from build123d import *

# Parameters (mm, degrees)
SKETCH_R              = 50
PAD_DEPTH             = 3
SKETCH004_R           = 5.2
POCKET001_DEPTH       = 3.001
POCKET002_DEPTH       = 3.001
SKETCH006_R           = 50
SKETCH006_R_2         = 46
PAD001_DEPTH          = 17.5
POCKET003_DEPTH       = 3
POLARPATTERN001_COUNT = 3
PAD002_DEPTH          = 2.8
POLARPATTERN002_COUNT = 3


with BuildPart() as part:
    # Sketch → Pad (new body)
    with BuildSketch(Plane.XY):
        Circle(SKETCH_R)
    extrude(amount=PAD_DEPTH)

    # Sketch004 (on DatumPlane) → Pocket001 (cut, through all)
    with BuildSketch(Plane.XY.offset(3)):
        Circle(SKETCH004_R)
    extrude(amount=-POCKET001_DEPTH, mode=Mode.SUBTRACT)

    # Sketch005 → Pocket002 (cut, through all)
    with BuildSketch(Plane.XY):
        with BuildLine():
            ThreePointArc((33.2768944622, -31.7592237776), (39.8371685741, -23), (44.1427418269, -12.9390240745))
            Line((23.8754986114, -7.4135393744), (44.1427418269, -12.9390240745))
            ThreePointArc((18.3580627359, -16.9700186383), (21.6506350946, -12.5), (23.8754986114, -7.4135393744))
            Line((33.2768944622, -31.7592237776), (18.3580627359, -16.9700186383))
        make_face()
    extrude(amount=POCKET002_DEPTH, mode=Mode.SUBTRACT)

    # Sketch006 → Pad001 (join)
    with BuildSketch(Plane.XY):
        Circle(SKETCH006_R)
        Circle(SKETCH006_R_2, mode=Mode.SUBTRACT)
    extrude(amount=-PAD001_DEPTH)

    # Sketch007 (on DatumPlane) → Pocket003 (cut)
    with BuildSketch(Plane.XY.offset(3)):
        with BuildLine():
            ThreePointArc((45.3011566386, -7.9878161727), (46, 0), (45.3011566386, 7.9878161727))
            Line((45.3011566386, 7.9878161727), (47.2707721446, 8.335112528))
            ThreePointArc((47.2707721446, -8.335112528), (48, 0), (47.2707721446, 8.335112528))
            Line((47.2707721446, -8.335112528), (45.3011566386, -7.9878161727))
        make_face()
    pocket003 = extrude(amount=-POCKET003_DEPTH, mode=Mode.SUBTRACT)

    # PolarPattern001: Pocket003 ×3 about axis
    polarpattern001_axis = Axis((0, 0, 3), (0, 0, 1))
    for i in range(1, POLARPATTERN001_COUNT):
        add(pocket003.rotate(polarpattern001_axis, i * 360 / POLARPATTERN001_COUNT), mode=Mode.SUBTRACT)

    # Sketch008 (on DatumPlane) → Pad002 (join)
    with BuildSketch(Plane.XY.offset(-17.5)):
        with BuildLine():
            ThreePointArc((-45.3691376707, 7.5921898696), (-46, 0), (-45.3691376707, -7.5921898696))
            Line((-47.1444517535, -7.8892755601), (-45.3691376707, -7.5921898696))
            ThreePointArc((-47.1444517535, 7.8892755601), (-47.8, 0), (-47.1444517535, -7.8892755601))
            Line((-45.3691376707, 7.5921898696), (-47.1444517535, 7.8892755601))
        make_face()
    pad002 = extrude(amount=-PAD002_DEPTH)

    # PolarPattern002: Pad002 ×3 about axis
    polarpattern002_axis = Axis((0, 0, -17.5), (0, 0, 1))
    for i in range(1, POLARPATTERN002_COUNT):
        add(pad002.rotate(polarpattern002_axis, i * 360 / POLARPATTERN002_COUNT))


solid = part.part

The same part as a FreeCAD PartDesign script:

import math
import FreeCAD as App
import Part
import Sketcher
from FreeCAD import Vector
Q = App.Units.Quantity

doc = App.newDocument("Part")
params = doc.addObject("Spreadsheet::Sheet", "Params")
for row, (alias, value) in enumerate([
    ("sketch1_diameter", "100 mm"),
    ("pad1_length", "3 mm"),
    ("sketch2_diameter", "10.4 mm"),
    ("sketch3_radius", "46 mm"),
    ("sketch3_radius2", "25 mm"),
    ("sketch4_diameter", "100 mm"),
    ("sketch4_diameter2", "92 mm"),
    ("pad2_length", "17.5 mm"),
    ("sketch5_radius", "46 mm"),
    ("sketch5_radius2", "48 mm"),
    ("pocket3_length", "3 mm"),
    ("sketch6_radius", "46 mm"),
    ("sketch6_radius2", "47.8 mm"),
    ("pad3_length", "2.8 mm"),
], start=1):
    params.set(f"A{row}", alias)
    params.set(f"B{row}", "=" + value)
    params.setAlias(f"B{row}", alias)

body = doc.addObject("PartDesign::Body", "Body")

sketch1 = body.newObject("Sketcher::SketchObject", "Sketch")
sketch1.AttachmentSupport = (doc.getObject("XY_Plane"), [""])
sketch1.MapMode = "FlatFace"
sketch1.addGeometry(Part.Circle(Vector(0, 0, 0), Vector(0, 0, 1), 50), False)
sketch1.addConstraint(Sketcher.Constraint("Coincident", 0, 3, -1, 1))
sketch1.addConstraint(Sketcher.Constraint("Diameter", 0, 100.0))
sketch1.setExpression("Constraints[1]", "Params.sketch1_diameter")
pad1 = body.newObject("PartDesign::Pad", "Pad")
pad1.Profile = sketch1
pad1.setExpression("Length", "Params.pad1_length")

sketch2 = body.newObject("Sketcher::SketchObject", "Sketch001")
sketch2.AttachmentSupport = (doc.getObject("XY_Plane"), [""])
sketch2.MapMode = "FlatFace"
sketch2.AttachmentOffset = App.Placement(Vector(0, 0, 3), App.Rotation())
sketch2.addGeometry(Part.Circle(Vector(0, 0, 0), Vector(0, 0, 1), 5.2), False)
sketch2.addConstraint(Sketcher.Constraint("Coincident", 0, 3, -1, 1))
sketch2.addConstraint(Sketcher.Constraint("Diameter", 0, 10.4))
sketch2.setExpression("Constraints[1]", "Params.sketch2_diameter")
pocket1 = body.newObject("PartDesign::Pocket", "Pocket")
pocket1.Profile = sketch2
pocket1.Type = "ThroughAll"

sketch3 = body.newObject("Sketcher::SketchObject", "Sketch002")
sketch3.AttachmentSupport = (doc.getObject("XY_Plane"), [""])
sketch3.MapMode = "FlatFace"
sketch3.addGeometry(Part.ArcOfCircle(Part.Circle(Vector(0, 0, 0), Vector(0, 0, 1), 46), math.radians(-43.663199), math.radians(-16.336801)), False)
sketch3.addGeometry(Part.LineSegment(Vector(44.142742, -12.939024, 0), Vector(23.875499, -7.413539, 0)), False)
sketch3.addGeometry(Part.ArcOfCircle(Part.Circle(Vector(0, 0, 0), Vector(0, 0, 1), 25), math.radians(-42.75), math.radians(-17.25)), False)
sketch3.addGeometry(Part.LineSegment(Vector(18.358063, -16.970019, 0), Vector(33.276894, -31.759224, 0)), False)
sketch3.addConstraint(Sketcher.Constraint("Coincident", 0, 2, 1, 1))
sketch3.addConstraint(Sketcher.Constraint("Coincident", 1, 2, 2, 2))
sketch3.addConstraint(Sketcher.Constraint("Coincident", 2, 1, 3, 1))
sketch3.addConstraint(Sketcher.Constraint("Coincident", 3, 2, 0, 1))
sketch3.addConstraint(Sketcher.Constraint("Coincident", 0, 3, -1, 1))
sketch3.addConstraint(Sketcher.Constraint("Coincident", 2, 3, -1, 1))
sketch3.addConstraint(Sketcher.Constraint("Equal", 1, 3))
sketch3.addConstraint(Sketcher.Constraint("Radius", 0, 46.0))
sketch3.addConstraint(Sketcher.Constraint("Radius", 2, 25.0))
sketch3.addConstraint(Sketcher.Constraint("Angle", 1, Q("164.75 deg")))
sketch3.addConstraint(Sketcher.Constraint("Angle", 3, Q("-44.75 deg")))
sketch3.addConstraint(Sketcher.Constraint("DistanceX", -1, 1, 1, 2, 23.875499))
sketch3.setExpression("Constraints[7]", "Params.sketch3_radius")
sketch3.setExpression("Constraints[8]", "Params.sketch3_radius2")
pocket2 = body.newObject("PartDesign::Pocket", "Pocket001")
pocket2.Profile = sketch3
pocket2.Type = "ThroughAll"
pocket2.Reversed = True

sketch4 = body.newObject("Sketcher::SketchObject", "Sketch003")
sketch4.AttachmentSupport = (doc.getObject("XY_Plane"), [""])
sketch4.MapMode = "FlatFace"
sketch4.addGeometry(Part.Circle(Vector(0, 0, 0), Vector(0, 0, 1), 50), False)
sketch4.addGeometry(Part.Circle(Vector(0, 0, 0), Vector(0, 0, 1), 46), False)
sketch4.addConstraint(Sketcher.Constraint("Coincident", 0, 3, -1, 1))
sketch4.addConstraint(Sketcher.Constraint("Coincident", 1, 3, -1, 1))
sketch4.addConstraint(Sketcher.Constraint("Diameter", 0, 100.0))
sketch4.addConstraint(Sketcher.Constraint("Diameter", 1, 92.0))
sketch4.setExpression("Constraints[2]", "Params.sketch4_diameter")
sketch4.setExpression("Constraints[3]", "Params.sketch4_diameter2")
pad2 = body.newObject("PartDesign::Pad", "Pad001")
pad2.Profile = sketch4
pad2.setExpression("Length", "Params.pad2_length")
pad2.Reversed = True

sketch5 = body.newObject("Sketcher::SketchObject", "Sketch004")
sketch5.AttachmentSupport = (doc.getObject("XY_Plane"), [""])
sketch5.MapMode = "FlatFace"
sketch5.AttachmentOffset = App.Placement(Vector(0, 0, 3), App.Rotation())
sketch5.addGeometry(Part.ArcOfCircle(Part.Circle(Vector(0, 0, 0), Vector(0, 0, 1), 46), math.radians(-10), math.radians(10)), False)
sketch5.addGeometry(Part.LineSegment(Vector(45.301157, -7.987816, 0), Vector(47.270772, -8.335113, 0)), False)
sketch5.addGeometry(Part.ArcOfCircle(Part.Circle(Vector(0, 0, 0), Vector(0, 0, 1), 48), math.radians(-10), math.radians(10)), False)
sketch5.addGeometry(Part.LineSegment(Vector(47.270772, 8.335113, 0), Vector(45.301157, 7.987816, 0)), False)
sketch5.addConstraint(Sketcher.Constraint("Coincident", 0, 1, 1, 1))
sketch5.addConstraint(Sketcher.Constraint("Coincident", 1, 2, 2, 1))
sketch5.addConstraint(Sketcher.Constraint("Coincident", 2, 2, 3, 1))
sketch5.addConstraint(Sketcher.Constraint("Coincident", 3, 2, 0, 2))
sketch5.addConstraint(Sketcher.Constraint("Coincident", 0, 3, -1, 1))
sketch5.addConstraint(Sketcher.Constraint("Coincident", 2, 3, -1, 1))
sketch5.addConstraint(Sketcher.Constraint("Vertical", 1, 2, 2, 2))
sketch5.addConstraint(Sketcher.Constraint("Vertical", 0, 1, 3, 2))
sketch5.addConstraint(Sketcher.Constraint("Radius", 0, 46.0))
sketch5.addConstraint(Sketcher.Constraint("Radius", 2, 48.0))
sketch5.addConstraint(Sketcher.Constraint("Angle", 1, Q("-10 deg")))
sketch5.addConstraint(Sketcher.Constraint("DistanceY", 0, 1, 2, 2, 16.322929))
sketch5.setExpression("Constraints[8]", "Params.sketch5_radius")
sketch5.setExpression("Constraints[9]", "Params.sketch5_radius2")
pocket3 = body.newObject("PartDesign::Pocket", "Pocket002")
pocket3.Profile = sketch5
pocket3.setExpression("Length", "Params.pocket3_length")
doc.recompute()

polarpattern = body.newObject("PartDesign::PolarPattern", "PolarPattern")
polarpattern.Originals = [pocket3]
polarpattern.Axis = (doc.getObject("Z_Axis"), [""])
polarpattern.Angle = 360
polarpattern.Occurrences = 3
body.Tip = polarpattern

sketch6 = body.newObject("Sketcher::SketchObject", "Sketch005")
sketch6.AttachmentSupport = (doc.getObject("XY_Plane"), [""])
sketch6.MapMode = "FlatFace"
sketch6.AttachmentOffset = App.Placement(Vector(0, 0, -17.5), App.Rotation())
sketch6.addGeometry(Part.ArcOfCircle(Part.Circle(Vector(0, 0, 0), Vector(0, 0, 1), 46), math.radians(170.5), math.radians(189.5)), False)
sketch6.addGeometry(Part.LineSegment(Vector(-45.369138, 7.59219, 0), Vector(-47.144452, 7.889276, 0)), False)
sketch6.addGeometry(Part.ArcOfCircle(Part.Circle(Vector(0, 0, 0), Vector(0, 0, 1), 47.8), math.radians(170.5), math.radians(189.5)), False)
sketch6.addGeometry(Part.LineSegment(Vector(-47.144452, -7.889276, 0), Vector(-45.369138, -7.59219, 0)), False)
sketch6.addConstraint(Sketcher.Constraint("Coincident", 0, 1, 1, 1))
sketch6.addConstraint(Sketcher.Constraint("Coincident", 1, 2, 2, 1))
sketch6.addConstraint(Sketcher.Constraint("Coincident", 2, 2, 3, 1))
sketch6.addConstraint(Sketcher.Constraint("Coincident", 3, 2, 0, 2))
sketch6.addConstraint(Sketcher.Constraint("Coincident", 0, 3, -1, 1))
sketch6.addConstraint(Sketcher.Constraint("Coincident", 2, 3, -1, 1))
sketch6.addConstraint(Sketcher.Constraint("Vertical", 1, 2, 2, 2))
sketch6.addConstraint(Sketcher.Constraint("Vertical", 0, 1, 3, 2))
sketch6.addConstraint(Sketcher.Constraint("Radius", 0, 46.0))
sketch6.addConstraint(Sketcher.Constraint("Radius", 2, 47.8))
sketch6.addConstraint(Sketcher.Constraint("Angle", 1, Q("170.5 deg")))
sketch6.addConstraint(Sketcher.Constraint("DistanceY", -1, 1, 0, 1, 7.59219))
sketch6.setExpression("Constraints[8]", "Params.sketch6_radius")
sketch6.setExpression("Constraints[9]", "Params.sketch6_radius2")
pad3 = body.newObject("PartDesign::Pad", "Pad002")
pad3.Profile = sketch6
pad3.setExpression("Length", "Params.pad3_length")
pad3.Reversed = True
doc.recompute()

polarpattern2 = body.newObject("PartDesign::PolarPattern", "PolarPattern001")
polarpattern2.Originals = [pad3]
polarpattern2.Axis = (doc.getObject("Z_Axis"), [""])
polarpattern2.Angle = 360
polarpattern2.Occurrences = 3
body.Tip = polarpattern2

doc.recompute()
